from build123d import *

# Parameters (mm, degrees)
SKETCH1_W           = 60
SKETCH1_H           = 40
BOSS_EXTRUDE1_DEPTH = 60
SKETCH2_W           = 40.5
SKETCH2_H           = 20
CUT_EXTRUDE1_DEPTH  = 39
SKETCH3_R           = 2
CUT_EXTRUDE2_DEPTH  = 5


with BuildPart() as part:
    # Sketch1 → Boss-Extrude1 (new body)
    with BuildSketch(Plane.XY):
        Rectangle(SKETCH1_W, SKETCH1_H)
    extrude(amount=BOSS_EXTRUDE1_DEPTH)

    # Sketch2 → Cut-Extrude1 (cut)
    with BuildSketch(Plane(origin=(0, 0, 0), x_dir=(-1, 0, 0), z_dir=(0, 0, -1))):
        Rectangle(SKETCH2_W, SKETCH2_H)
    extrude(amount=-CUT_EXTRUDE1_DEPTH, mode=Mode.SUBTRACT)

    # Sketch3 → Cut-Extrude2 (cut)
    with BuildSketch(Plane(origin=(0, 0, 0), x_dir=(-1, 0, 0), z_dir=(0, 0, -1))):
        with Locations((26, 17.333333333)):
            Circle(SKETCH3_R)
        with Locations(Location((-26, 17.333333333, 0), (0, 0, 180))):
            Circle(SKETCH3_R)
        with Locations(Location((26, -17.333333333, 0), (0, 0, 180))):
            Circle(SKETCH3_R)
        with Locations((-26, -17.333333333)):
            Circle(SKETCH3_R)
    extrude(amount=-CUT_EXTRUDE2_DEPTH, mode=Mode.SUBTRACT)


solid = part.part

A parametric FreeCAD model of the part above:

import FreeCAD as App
import Part
import Sketcher


def add_polygon(sketch, points):
    """Adds a closed chain of lines whose ends are joined by coincident constraints."""
    first, n = sketch.GeometryCount, len(points)
    for a, b in zip(points, points[1:] + points[:1]):
        sketch.addGeometry(Part.LineSegment(App.Vector(*a, 0), App.Vector(*b, 0)), False)
    for i in range(n):
        sketch.addConstraint(Sketcher.Constraint("Coincident", first + i, 2, first + (i + 1) % n, 1))

doc = App.newDocument("Part")
params = doc.addObject("Spreadsheet::Sheet", "Params")
for row, (alias, value) in enumerate([
    ("sketch1_width", "60 mm"),
    ("sketch1_height", "40 mm"),
    ("pad1_length", "60 mm"),
    ("sketch2_height", "20 mm"),
    ("sketch2_width", "40.5 mm"),
    ("pocket1_length", "39 mm"),
    ("sketch3_diameter", "4 mm"),
    ("pocket2_length", "5 mm"),
], start=1):
    params.set(f"A{row}", alias)
    params.set(f"B{row}", "=" + value)
    params.setAlias(f"B{row}", alias)

body = doc.addObject("PartDesign::Body", "Body")

sketch1 = body.newObject("Sketcher::SketchObject", "Sketch")
sketch1.AttachmentSupport = (doc.getObject("XY_Plane"), [""])
sketch1.MapMode = "FlatFace"
add_polygon(sketch1, [(-30, 20), (-30, -20), (30, -20), (30, 20)])
sketch1.addConstraint([
    Sketcher.Constraint("Vertical", 0),
    Sketcher.Constraint("Horizontal", 1),
    Sketcher.Constraint("Vertical", 2),
    Sketcher.Constraint("Horizontal", 3),
    Sketcher.Constraint("Symmetric", 0, 2, 2, 2, -1, 1),
    Sketcher.Constraint("DistanceX", 1, 1, 1, 2, 60.0),
    Sketcher.Constraint("DistanceY", 0, 2, 0, 1, 40.0),
])
sketch1.setExpression("Constraints[9]", "Params.sketch1_width")
sketch1.setExpression("Constraints[10]", "Params.sketch1_height")
pad1 = body.newObject("PartDesign::Pad", "Pad")
pad1.Profile = sketch1
pad1.setExpression("Length", "Params.pad1_length")

sketch2 = body.newObject("Sketcher::SketchObject", "Sketch001")
sketch2.AttachmentSupport = (doc.getObject("XY_Plane"), [""])
sketch2.MapMode = "FlatFace"
add_polygon(sketch2, [(20, 10), (20, -10), (-20, -10), (-20, 10)])
sketch2.addConstraint([
    Sketcher.Constraint("Vertical", 0),
    Sketcher.Constraint("Horizontal", 1),
    Sketcher.Constraint("Vertical", 2),
    Sketcher.Constraint("Horizontal", 3),
    Sketcher.Constraint("Symmetric", 0, 2, 2, 2, -1, 1),
    Sketcher.Constraint("DistanceY", 0, 2, 0, 1, 20.0),
    Sketcher.Constraint("DistanceX", 1, 2, 1, 1, 40.5),
])
sketch2.setExpression("Constraints[9]", "Params.sketch2_height")
sketch2.setExpression("Constraints[10]", "Params.sketch2_width")
pocket1 = body.newObject("PartDesign::Pocket", "Pocket")
pocket1.Profile = sketch2
pocket1.setExpression("Length", "Params.pocket1_length")
pocket1.Reversed = True

sketch3 = body.newObject("Sketcher::SketchObject", "Sketch002")
sketch3.AttachmentSupport = (doc.getObject("XY_Plane"), [""])
sketch3.MapMode = "FlatFace"
sketch3.addGeometry([
    Part.Circle(App.Vector(-26, 17.3, 0), App.Vector(0, 0, 1), 2),
    Part.Circle(App.Vector(26, 17.3, 0), App.Vector(0, 0, 1), 2),
    Part.Circle(App.Vector(-26, -17.3, 0), App.Vector(0, 0, 1), 2),
    Part.Circle(App.Vector(26, -17.3, 0), App.Vector(0, 0, 1), 2),
], False)
sketch3.addConstraint([
    Sketcher.Constraint("Equal", 0, 1),
    Sketcher.Constraint("Equal", 1, 2),
    Sketcher.Constraint("Equal", 2, 3),
    Sketcher.Constraint("Symmetric", 1, 3, 2, 3, -1, 1),
    Sketcher.Constraint("Symmetric", 0, 3, 3, 3, -1, 1),
    Sketcher.Constraint("Symmetric", 0, 3, 1, 3, -2),
    Sketcher.Constraint("Diameter", 0, 4.0),
    Sketcher.Constraint("DistanceX", 0, 3, -1, 1, 26.0),
    Sketcher.Constraint("DistanceY", -1, 1, 0, 3, 17.333333),
])
sketch3.setExpression("Constraints[6]", "Params.sketch3_diameter")
pocket2 = body.newObject("PartDesign::Pocket", "Pocket001")
pocket2.Profile = sketch3
pocket2.setExpression("Length", "Params.pocket2_length")
pocket2.Reversed = True

doc.recompute()
